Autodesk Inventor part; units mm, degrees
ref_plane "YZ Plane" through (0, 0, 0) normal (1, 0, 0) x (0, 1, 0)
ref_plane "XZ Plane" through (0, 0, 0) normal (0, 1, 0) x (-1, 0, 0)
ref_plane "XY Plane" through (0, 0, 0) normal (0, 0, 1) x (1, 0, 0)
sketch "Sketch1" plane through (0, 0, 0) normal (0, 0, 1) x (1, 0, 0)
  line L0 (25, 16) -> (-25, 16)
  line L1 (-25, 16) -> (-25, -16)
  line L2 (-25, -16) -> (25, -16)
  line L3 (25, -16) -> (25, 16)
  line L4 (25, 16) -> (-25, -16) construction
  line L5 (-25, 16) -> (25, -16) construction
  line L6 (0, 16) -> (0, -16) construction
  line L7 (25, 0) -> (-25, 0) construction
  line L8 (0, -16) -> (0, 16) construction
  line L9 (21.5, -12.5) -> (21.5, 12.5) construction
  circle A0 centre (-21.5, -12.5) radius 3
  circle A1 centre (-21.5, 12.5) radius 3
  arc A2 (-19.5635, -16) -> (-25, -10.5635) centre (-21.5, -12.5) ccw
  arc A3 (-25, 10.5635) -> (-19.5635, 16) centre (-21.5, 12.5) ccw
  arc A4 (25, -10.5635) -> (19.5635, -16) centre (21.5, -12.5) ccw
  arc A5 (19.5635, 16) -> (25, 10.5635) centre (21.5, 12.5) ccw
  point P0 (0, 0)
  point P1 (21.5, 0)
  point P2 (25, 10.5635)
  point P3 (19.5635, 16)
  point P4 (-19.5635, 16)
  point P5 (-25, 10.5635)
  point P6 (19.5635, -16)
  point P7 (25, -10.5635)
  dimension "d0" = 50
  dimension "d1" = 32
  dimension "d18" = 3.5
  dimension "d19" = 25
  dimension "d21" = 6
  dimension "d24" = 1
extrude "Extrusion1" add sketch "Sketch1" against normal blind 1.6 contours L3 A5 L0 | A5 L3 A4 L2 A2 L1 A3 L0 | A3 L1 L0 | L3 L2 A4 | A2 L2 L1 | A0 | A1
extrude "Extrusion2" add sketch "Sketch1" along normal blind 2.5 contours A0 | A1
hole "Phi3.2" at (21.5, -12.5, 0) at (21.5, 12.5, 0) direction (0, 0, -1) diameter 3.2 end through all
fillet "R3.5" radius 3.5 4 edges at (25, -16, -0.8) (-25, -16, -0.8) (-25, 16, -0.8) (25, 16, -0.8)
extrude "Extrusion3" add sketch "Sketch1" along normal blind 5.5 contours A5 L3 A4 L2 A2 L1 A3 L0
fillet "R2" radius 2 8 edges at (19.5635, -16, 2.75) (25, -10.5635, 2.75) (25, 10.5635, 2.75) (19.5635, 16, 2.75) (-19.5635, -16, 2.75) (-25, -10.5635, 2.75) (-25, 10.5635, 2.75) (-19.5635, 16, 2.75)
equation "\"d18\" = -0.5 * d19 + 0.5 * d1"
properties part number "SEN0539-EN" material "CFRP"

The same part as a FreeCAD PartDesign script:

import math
import FreeCAD as App
import Part
import Sketcher
from FreeCAD import Vector
Q = App.Units.Quantity


def edges_at(feature, points):
    """Names of the edges that pass closest to the given points."""
    edges = feature.Shape.Edges
    near = lambda p: min(range(len(edges)), key=lambda i: edges[i].distToShape(Part.Vertex(*p))[0])
    return sorted({f"Edge{near(p) + 1}" for p in points})

doc = App.newDocument("Part")
params = doc.addObject("Spreadsheet::Sheet", "Params")
for row, (alias, value) in enumerate([
    ("sketch1_width", "50 mm"),
    ("sketch1_height", "32 mm"),
    ("pad1_length", "1.6 mm"),
    ("sketch2_diameter", "6 mm"),
    ("pad2_length", "2.5 mm"),
    ("sketch3_diameter", "3.2 mm"),
    ("hole_diameter", "3.2 mm"),
    ("fillet_radius", "3.5 mm"),
    ("sketch4_radius", "4 mm"),
    ("sketch4_width", "3.5 mm"),
    ("pad3_length", "5.5 mm"),
    ("fillet2_radius", "2 mm"),
], start=1):
    params.set(f"A{row}", alias)
    params.set(f"B{row}", "=" + value)
    params.setAlias(f"B{row}", alias)

body = doc.addObject("PartDesign::Body", "Body")

# Sketch on XY plane
sketch1 = body.newObject("Sketcher::SketchObject", "Sketch")
sketch1.AttachmentSupport = (doc.getObject("XY_Plane"), [""])
sketch1.MapMode = "FlatFace"
sketch1.addGeometry(Part.LineSegment(Vector(25, 16, 0), Vector(-25, 16, 0)), False)
sketch1.addGeometry(Part.LineSegment(Vector(-25, 16, 0), Vector(-25, -16, 0)), False)
sketch1.addGeometry(Part.LineSegment(Vector(-25, -16, 0), Vector(25, -16, 0)), False)
sketch1.addGeometry(Part.LineSegment(Vector(25, -16, 0), Vector(25, 16, 0)), False)
sketch1.addConstraint(Sketcher.Constraint("Coincident", 0, 2, 1, 1))
sketch1.addConstraint(Sketcher.Constraint("Coincident", 1, 2, 2, 1))
sketch1.addConstraint(Sketcher.Constraint("Coincident", 2, 2, 3, 1))
sketch1.addConstraint(Sketcher.Constraint("Coincident", 3, 2, 0, 1))
sketch1.addConstraint(Sketcher.Constraint("Horizontal", 0))
sketch1.addConstraint(Sketcher.Constraint("Vertical", 1))
sketch1.addConstraint(Sketcher.Constraint("Horizontal", 2))
sketch1.addConstraint(Sketcher.Constraint("Vertical", 3))
sketch1.addConstraint(Sketcher.Constraint("Symmetric", 0, 2, 2, 2, -1, 1))
sketch1.addConstraint(Sketcher.Constraint("DistanceX", 0, 2, 0, 1, Q("50 mm")))
sketch1.addConstraint(Sketcher.Constraint("DistanceY", 1, 2, 1, 1, Q("32 mm")))
sketch1.setExpression("Constraints[9]", "Params.sketch1_width")
sketch1.setExpression("Constraints[10]", "Params.sketch1_height")
pad1 = body.newObject("PartDesign::Pad", "Pad")
pad1.Profile = sketch1
pad1.setExpression("Length", "Params.pad1_length")
pad1.Reversed = True

# Sketch on XY plane
sketch2 = body.newObject("Sketcher::SketchObject", "Sketch001")
sketch2.AttachmentSupport = (doc.getObject("XY_Plane"), [""])
sketch2.MapMode = "FlatFace"
sketch2.addGeometry(Part.Circle(Vector(-21.5, -12.5, 0), Vector(0, 0, 1), 3), False)
sketch2.addGeometry(Part.Circle(Vector(-21.5, 12.5, 0), Vector(0, 0, 1), 3), False)
sketch2.addConstraint(Sketcher.Constraint("Equal", 0, 1))
sketch2.addConstraint(Sketcher.Constraint("Symmetric", 0, 3, 1, 3, -1))
sketch2.addConstraint(Sketcher.Constraint("Diameter", 0, Q("6 mm")))
sketch2.addConstraint(Sketcher.Constraint("DistanceY", 0, 3, 1, 3, Q("25 mm")))
sketch2.addConstraint(Sketcher.Constraint("DistanceX", 0, 3, -1, 1, Q("21.5 mm")))
sketch2.setExpression("Constraints[2]", "Params.sketch2_diameter")
pad2 = body.newObject("PartDesign::Pad", "Pad001")
pad2.Profile = sketch2
pad2.setExpression("Length", "Params.pad2_length")

# Sketch on XY plane
sketch3 = body.newObject("Sketcher::SketchObject", "Sketch002")
sketch3.AttachmentSupport = (doc.getObject("XY_Plane"), [""])
sketch3.MapMode = "FlatFace"
sketch3.addGeometry(Part.Circle(Vector(21.5, -12.5, 0), Vector(0, 0, 1), 1.6), False)
sketch3.addGeometry(Part.Circle(Vector(21.5, 12.5, 0), Vector(0, 0, 1), 1.6), False)
sketch3.addConstraint(Sketcher.Constraint("Equal", 0, 1))
sketch3.addConstraint(Sketcher.Constraint("Symmetric", 0, 3, 1, 3, -1))
sketch3.addConstraint(Sketcher.Constraint("Diameter", 0, Q("3.2 mm")))
sketch3.addConstraint(Sketcher.Constraint("DistanceY", 0, 3, 1, 3, Q("25 mm")))
sketch3.addConstraint(Sketcher.Constraint("DistanceX", -1, 1, 0, 3, Q("21.5 mm")))
sketch3.setExpression("Constraints[2]", "Params.sketch3_diameter")
doc.recompute()
hole = body.newObject("PartDesign::Hole", "Hole")
hole.Profile = sketch3
hole.ThreadType = "None"
hole.setExpression("Diameter", "Params.hole_diameter")
hole.DepthType = "ThroughAll"
doc.recompute()

fillet = body.newObject("PartDesign::Fillet", "Fillet")
fillet.Base = (hole, edges_at(hole, [
    (25, -16, -0.8),
    (-25, -16, -0.8),
    (-25, 16, -0.8),
    (25, 16, -0.8),
]))
fillet.setExpression("Radius", "Params.fillet_radius")

# Sketch on XY plane
sketch4 = body.newObject("Sketcher::SketchObject", "Sketch003")
sketch4.AttachmentSupport = (doc.getObject("XY_Plane"), [""])
sketch4.MapMode = "FlatFace"
sketch4.addGeometry(Part.ArcOfCircle(Part.Circle(Vector(21.5, 12.5, 0), Vector(0, 0, 1), 4), math.radians(119), math.radians(331)), False)
sketch4.addGeometry(Part.LineSegment(Vector(19.6, 16, 0), Vector(-19.6, 16, 0)), False)
sketch4.addGeometry(Part.ArcOfCircle(Part.Circle(Vector(-21.5, 12.5, 0), Vector(0, 0, 1), 4), math.radians(-151), math.radians(61)), False)
sketch4.addGeometry(Part.LineSegment(Vector(-25, 10.6, 0), Vector(-25, -10.6, 0)), False)
sketch4.addGeometry(Part.ArcOfCircle(Part.Circle(Vector(-21.5, -12.5, 0), Vector(0, 0, 1), 4), math.radians(-61), math.radians(151)), False)
sketch4.addGeometry(Part.LineSegment(Vector(-19.6, -16, 0), Vector(19.6, -16, 0)), False)
sketch4.addGeometry(Part.ArcOfCircle(Part.Circle(Vector(21.5, -12.5, 0), Vector(0, 0, 1), 4), math.radians(29), math.radians(241)), False)
sketch4.addGeometry(Part.LineSegment(Vector(25, -10.6, 0), Vector(25, 10.6, 0)), False)
sketch4.addConstraint(Sketcher.Constraint("Coincident", 0, 1, 1, 1))
sketch4.addConstraint(Sketcher.Constraint("Coincident", 1, 2, 2, 2))
sketch4.addConstraint(Sketcher.Constraint("Coincident", 2, 1, 3, 1))
sketch4.addConstraint(Sketcher.Constraint("Coincident", 3, 2, 4, 2))
sketch4.addConstraint(Sketcher.Constraint("Coincident", 4, 1, 5, 1))
sketch4.addConstraint(Sketcher.Constraint("Coincident", 5, 2, 6, 2))
sketch4.addConstraint(Sketcher.Constraint("Coincident", 6, 1, 7, 1))
sketch4.addConstraint(Sketcher.Constraint("Coincident", 7, 2, 0, 2))
sketch4.addConstraint(Sketcher.Constraint("Horizontal", 1))
sketch4.addConstraint(Sketcher.Constraint("Vertical", 3))
sketch4.addConstraint(Sketcher.Constraint("Horizontal", 5))
sketch4.addConstraint(Sketcher.Constraint("Vertical", 7))
sketch4.addConstraint(Sketcher.Constraint("Equal", 0, 2))
sketch4.addConstraint(Sketcher.Constraint("Equal", 2, 4))
sketch4.addConstraint(Sketcher.Constraint("Equal", 4, 6))
sketch4.addConstraint(Sketcher.Constraint("Symmetric", 0, 3, 4, 3, -1, 1))
sketch4.addConstraint(Sketcher.Constraint("Symmetric", 2, 3, 6, 3, -1, 1))
sketch4.addConstraint(Sketcher.Constraint("Symmetric", 0, 3, 2, 3, -2))
sketch4.addConstraint(Sketcher.Constraint("Horizontal", 3, 2, 6, 1))
sketch4.addConstraint(Sketcher.Constraint("Vertical", 1, 2, 4, 1))
sketch4.addConstraint(Sketcher.Constraint("DistanceX", 2, 1, -1, 1, Q("25 mm")))
sketch4.addConstraint(Sketcher.Constraint("Radius", 0, Q("4 mm")))
sketch4.addConstraint(Sketcher.Constraint("DistanceY", 4, 3, 2, 3, Q("25 mm")))
sketch4.addConstraint(Sketcher.Constraint("DistanceY", 4, 1, 1, 2, Q("32 mm")))
sketch4.addConstraint(Sketcher.Constraint("DistanceX", 2, 1, 2, 3, Q("3.5 mm")))
sketch4.setExpression("Constraints[21]", "Params.sketch4_radius")
sketch4.setExpression("Constraints[24]", "Params.sketch4_width")
pad3 = body.newObject("PartDesign::Pad", "Pad002")
pad3.Profile = sketch4
pad3.setExpression("Length", "Params.pad3_length")
doc.recompute()

fillet2 = body.newObject("PartDesign::Fillet", "Fillet001")
fillet2.Base = (pad3, edges_at(pad3, [
    (19.564, -16, 2.75),
    (25, -10.563, 2.75),
    (25, 10.563, 2.75),
    (19.564, 16, 2.75),
    (-19.564, -16, 2.75),
    (-25, -10.563, 2.75),
    (-25, 10.563, 2.75),
    (-19.564, 16, 2.75),
]))
fillet2.setExpression("Radius", "Params.fillet2_radius")

doc.recompute()
